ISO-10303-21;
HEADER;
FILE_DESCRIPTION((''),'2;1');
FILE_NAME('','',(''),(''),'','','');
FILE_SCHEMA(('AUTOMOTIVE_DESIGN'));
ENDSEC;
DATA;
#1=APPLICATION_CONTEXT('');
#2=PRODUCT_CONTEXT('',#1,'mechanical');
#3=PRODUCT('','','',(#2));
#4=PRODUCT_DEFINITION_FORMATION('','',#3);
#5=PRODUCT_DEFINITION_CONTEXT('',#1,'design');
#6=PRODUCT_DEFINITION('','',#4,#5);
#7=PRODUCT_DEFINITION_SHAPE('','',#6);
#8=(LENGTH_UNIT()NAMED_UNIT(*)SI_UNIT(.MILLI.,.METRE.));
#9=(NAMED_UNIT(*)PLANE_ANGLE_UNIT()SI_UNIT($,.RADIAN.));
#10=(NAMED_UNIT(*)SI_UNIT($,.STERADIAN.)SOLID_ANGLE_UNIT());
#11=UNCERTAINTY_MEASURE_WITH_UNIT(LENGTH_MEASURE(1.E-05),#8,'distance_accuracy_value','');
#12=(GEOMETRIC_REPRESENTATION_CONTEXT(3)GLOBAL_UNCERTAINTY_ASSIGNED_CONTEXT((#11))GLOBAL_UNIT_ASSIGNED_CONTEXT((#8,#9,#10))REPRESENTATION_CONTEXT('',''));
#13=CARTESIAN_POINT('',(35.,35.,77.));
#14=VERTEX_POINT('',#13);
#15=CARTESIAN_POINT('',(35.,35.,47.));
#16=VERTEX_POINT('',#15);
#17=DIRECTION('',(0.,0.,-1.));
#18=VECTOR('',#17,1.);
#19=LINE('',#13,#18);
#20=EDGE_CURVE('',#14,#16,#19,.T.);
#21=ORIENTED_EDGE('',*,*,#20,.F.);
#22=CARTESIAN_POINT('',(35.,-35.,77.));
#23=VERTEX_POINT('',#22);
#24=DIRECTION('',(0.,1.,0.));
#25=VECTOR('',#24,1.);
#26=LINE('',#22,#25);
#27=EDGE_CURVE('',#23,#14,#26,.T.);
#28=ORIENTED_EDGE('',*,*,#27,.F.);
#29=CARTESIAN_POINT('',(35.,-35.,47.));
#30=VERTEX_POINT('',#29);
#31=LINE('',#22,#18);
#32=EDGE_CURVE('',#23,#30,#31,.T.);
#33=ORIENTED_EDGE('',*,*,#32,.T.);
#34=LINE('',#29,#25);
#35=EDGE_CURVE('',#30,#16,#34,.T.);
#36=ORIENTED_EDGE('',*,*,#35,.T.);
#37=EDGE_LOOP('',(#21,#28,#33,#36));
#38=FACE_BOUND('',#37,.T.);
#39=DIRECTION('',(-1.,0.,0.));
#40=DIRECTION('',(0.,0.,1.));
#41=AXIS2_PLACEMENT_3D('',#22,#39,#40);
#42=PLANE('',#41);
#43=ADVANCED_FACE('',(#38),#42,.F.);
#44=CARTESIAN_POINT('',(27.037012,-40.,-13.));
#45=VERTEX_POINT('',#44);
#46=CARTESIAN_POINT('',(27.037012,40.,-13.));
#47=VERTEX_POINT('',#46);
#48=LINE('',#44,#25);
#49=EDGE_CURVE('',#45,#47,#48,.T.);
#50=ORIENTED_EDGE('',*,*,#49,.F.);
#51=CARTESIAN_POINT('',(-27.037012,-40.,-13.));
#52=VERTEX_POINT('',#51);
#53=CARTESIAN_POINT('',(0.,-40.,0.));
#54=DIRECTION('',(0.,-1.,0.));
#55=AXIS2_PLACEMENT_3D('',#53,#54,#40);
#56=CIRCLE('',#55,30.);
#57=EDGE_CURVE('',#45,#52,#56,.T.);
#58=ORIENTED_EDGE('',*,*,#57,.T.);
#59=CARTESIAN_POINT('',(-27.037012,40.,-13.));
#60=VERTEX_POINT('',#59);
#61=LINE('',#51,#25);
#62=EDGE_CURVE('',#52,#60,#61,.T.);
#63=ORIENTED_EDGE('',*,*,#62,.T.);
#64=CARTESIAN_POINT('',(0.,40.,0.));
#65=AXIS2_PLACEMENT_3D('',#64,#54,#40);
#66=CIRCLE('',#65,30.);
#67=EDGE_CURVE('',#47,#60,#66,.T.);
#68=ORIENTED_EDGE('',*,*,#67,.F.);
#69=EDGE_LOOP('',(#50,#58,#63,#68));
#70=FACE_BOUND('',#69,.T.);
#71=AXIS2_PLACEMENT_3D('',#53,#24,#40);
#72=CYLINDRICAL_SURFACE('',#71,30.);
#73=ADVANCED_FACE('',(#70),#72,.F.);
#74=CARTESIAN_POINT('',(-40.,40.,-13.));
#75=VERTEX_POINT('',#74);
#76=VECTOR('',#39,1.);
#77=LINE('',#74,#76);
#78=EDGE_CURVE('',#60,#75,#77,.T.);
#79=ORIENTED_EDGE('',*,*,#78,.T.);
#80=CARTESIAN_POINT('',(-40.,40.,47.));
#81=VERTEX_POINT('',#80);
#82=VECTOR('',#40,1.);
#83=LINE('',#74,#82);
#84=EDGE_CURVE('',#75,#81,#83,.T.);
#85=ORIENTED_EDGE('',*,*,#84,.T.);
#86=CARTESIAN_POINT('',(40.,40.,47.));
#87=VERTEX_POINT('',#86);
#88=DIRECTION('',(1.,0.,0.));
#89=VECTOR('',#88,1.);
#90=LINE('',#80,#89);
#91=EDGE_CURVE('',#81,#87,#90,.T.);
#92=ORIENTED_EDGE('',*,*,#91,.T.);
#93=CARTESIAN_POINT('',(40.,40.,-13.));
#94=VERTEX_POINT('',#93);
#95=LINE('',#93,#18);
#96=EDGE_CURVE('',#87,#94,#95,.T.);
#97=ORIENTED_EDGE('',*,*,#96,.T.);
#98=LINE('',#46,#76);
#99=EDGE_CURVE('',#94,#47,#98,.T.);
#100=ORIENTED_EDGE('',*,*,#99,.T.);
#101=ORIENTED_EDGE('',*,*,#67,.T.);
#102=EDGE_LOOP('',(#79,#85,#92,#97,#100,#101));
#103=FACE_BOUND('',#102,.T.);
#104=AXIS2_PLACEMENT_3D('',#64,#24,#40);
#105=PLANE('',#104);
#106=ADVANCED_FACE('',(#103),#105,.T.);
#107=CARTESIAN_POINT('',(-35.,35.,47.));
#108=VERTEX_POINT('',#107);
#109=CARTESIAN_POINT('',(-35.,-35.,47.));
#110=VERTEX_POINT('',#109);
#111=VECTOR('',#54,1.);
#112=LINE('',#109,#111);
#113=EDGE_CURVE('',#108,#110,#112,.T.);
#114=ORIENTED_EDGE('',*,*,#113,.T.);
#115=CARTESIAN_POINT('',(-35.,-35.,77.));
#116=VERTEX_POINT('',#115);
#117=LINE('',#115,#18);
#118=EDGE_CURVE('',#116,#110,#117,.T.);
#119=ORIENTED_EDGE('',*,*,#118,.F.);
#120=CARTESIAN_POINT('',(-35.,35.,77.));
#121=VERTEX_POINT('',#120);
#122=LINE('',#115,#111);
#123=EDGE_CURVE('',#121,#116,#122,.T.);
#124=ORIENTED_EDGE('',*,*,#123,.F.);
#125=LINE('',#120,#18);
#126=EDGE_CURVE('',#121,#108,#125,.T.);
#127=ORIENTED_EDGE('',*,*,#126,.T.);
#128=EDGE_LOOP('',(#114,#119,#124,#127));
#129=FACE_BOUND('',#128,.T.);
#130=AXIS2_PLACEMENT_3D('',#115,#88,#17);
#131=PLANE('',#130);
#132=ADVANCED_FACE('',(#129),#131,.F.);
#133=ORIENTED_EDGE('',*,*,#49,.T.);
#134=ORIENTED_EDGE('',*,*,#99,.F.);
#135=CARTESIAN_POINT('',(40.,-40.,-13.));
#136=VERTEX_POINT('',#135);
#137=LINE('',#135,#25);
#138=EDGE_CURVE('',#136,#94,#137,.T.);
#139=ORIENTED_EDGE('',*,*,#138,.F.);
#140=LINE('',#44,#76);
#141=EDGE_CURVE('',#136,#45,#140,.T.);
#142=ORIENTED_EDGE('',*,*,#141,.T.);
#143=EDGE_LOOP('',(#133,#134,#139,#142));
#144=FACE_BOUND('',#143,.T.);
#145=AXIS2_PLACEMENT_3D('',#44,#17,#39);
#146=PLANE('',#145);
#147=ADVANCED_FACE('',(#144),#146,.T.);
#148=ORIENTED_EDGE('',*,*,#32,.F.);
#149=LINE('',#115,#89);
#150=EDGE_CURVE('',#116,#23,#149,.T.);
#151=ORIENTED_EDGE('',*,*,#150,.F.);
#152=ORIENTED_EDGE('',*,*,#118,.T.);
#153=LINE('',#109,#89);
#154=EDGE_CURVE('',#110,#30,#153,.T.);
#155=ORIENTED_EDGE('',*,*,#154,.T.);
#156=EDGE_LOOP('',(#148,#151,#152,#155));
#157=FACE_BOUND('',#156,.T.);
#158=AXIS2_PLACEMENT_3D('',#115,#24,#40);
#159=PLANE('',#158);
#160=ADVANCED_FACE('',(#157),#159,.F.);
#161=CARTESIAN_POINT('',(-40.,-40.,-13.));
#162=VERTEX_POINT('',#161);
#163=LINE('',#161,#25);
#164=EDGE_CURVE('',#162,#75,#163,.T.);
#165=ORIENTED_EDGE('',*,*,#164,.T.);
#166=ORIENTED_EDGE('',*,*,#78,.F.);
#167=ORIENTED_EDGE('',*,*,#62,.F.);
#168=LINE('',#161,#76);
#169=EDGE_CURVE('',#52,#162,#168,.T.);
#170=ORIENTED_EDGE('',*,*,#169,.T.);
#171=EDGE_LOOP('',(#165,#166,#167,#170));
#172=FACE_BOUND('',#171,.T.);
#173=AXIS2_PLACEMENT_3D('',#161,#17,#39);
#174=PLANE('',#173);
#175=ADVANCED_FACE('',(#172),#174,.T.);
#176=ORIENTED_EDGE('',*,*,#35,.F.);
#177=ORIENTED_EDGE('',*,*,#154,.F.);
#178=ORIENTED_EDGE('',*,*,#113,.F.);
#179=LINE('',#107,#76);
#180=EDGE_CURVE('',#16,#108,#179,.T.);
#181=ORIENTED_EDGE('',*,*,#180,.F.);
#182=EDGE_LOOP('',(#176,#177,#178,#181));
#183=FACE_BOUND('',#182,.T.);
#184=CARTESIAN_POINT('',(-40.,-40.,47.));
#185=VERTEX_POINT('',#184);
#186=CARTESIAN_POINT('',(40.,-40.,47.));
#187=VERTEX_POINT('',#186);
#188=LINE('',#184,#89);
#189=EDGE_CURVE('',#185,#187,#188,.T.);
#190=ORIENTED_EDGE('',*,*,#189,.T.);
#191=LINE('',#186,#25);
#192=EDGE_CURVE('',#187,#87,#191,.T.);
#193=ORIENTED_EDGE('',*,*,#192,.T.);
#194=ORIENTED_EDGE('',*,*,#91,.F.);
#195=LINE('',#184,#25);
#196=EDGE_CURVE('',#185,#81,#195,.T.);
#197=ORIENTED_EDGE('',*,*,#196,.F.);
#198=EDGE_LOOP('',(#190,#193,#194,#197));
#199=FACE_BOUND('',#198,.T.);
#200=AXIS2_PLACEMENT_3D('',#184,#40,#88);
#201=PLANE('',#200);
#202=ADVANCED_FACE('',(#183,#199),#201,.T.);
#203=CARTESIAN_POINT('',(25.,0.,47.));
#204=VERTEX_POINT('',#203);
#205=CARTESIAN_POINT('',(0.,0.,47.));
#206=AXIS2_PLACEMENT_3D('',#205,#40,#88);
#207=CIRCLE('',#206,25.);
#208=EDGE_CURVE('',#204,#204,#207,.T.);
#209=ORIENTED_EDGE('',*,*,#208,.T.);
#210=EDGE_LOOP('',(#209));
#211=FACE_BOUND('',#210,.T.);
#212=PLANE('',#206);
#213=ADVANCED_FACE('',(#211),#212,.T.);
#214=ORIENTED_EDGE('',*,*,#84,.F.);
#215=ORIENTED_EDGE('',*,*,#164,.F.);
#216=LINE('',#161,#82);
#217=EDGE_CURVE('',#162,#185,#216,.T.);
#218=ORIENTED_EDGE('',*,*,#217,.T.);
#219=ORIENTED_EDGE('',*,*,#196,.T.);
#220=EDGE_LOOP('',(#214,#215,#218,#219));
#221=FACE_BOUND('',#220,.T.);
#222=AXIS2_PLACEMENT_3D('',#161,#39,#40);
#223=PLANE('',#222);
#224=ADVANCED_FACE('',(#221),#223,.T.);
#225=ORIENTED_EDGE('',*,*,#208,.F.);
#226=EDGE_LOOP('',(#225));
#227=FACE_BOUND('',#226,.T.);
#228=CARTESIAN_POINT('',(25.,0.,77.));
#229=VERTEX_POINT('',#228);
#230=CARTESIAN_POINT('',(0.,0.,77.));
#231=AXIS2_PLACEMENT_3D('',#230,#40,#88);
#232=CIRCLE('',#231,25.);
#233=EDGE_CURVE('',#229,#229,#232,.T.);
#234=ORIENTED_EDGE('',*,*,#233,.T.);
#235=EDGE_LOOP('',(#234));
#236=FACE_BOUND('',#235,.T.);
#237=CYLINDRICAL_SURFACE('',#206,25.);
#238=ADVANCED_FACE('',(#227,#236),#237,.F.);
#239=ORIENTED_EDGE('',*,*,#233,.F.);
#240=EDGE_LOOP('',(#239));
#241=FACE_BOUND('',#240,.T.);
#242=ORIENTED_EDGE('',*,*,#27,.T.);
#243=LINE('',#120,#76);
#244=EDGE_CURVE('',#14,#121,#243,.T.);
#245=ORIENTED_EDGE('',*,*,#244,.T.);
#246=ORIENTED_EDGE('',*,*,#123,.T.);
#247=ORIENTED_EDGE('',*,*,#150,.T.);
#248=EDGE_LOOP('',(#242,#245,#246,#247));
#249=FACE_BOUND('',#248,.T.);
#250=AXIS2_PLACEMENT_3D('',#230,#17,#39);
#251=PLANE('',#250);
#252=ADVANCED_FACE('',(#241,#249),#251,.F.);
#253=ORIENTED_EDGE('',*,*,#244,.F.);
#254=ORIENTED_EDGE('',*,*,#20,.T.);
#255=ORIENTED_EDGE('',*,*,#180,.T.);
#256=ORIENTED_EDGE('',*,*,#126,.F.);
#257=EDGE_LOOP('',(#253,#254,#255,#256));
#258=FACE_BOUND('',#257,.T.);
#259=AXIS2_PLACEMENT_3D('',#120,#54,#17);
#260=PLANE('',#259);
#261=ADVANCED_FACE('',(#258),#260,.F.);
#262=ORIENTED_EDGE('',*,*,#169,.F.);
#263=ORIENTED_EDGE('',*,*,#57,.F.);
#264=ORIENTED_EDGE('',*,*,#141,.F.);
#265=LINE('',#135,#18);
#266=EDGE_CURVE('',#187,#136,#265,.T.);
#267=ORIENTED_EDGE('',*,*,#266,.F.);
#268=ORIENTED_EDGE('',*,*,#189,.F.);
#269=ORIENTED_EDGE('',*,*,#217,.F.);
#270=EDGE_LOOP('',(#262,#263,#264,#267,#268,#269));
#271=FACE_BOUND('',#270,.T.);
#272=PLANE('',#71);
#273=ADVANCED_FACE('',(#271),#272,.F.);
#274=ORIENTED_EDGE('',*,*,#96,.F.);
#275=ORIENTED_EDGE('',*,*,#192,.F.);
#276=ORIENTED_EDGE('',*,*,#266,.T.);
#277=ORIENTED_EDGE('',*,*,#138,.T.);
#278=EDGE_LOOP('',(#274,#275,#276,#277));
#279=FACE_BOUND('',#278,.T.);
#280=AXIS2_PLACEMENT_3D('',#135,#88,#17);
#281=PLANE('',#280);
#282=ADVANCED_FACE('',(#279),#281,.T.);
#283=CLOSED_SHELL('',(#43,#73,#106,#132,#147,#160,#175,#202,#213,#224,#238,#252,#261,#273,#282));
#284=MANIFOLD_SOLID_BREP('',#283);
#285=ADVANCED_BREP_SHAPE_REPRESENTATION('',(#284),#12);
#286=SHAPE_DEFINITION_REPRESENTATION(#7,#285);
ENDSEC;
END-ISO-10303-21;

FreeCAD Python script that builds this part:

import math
import FreeCAD as App
import Part
import Sketcher
from FreeCAD import Vector
Q = App.Units.Quantity


def add_polygon(sketch, points):
    """Adds a closed chain of lines whose ends are joined by coincident constraints."""
    first, n = sketch.GeometryCount, len(points)
    for a, b in zip(points, points[1:] + points[:1]):
        sketch.addGeometry(Part.LineSegment(App.Vector(*a, 0), App.Vector(*b, 0)), False)
    for i in range(n):
        sketch.addConstraint(Sketcher.Constraint("Coincident", first + i, 2, first + (i + 1) % n, 1))

doc = App.newDocument("Part")
body = doc.addObject("PartDesign::Body", "Body")

# Sketch on XZ plane
sketch1 = body.newObject("Sketcher::SketchObject", "Sketch")
sketch1.AttachmentSupport = (doc.getObject("XZ_Plane"), [""])
sketch1.MapMode = "FlatFace"
sketch1.addGeometry([
    Part.LineSegment(Vector(-27, -13, 0), Vector(-40, -13, 0)),  # 0
    Part.LineSegment(Vector(-40, -13, 0), Vector(-40, 47, 0)),  # 1
    Part.LineSegment(Vector(-40, 47, 0), Vector(40, 47, 0)),  # 2
    Part.LineSegment(Vector(40, 47, 0), Vector(40, -13, 0)),  # 3
    Part.LineSegment(Vector(40, -13, 0), Vector(27, -13, 0)),  # 4
    Part.ArcOfCircle(Part.Circle(Vector(0, 0, 0), Vector(0, 0, 1), 30), math.radians(-26), math.radians(206)),  # 5
], False)
sketch1.addConstraint([
    Sketcher.Constraint("Coincident", 0, 2, 1, 1),
    Sketcher.Constraint("Coincident", 1, 2, 2, 1),
    Sketcher.Constraint("Coincident", 2, 2, 3, 1),
    Sketcher.Constraint("Coincident", 3, 2, 4, 1),
    Sketcher.Constraint("Coincident", 4, 2, 5, 1),
    Sketcher.Constraint("Coincident", 5, 2, 0, 1),
    Sketcher.Constraint("Horizontal", 0),
    Sketcher.Constraint("Vertical", 1),
    Sketcher.Constraint("Horizontal", 2),
    Sketcher.Constraint("Vertical", 3),
    Sketcher.Constraint("Horizontal", 4),
    Sketcher.Constraint("Coincident", 5, 3, -1, 1),
    Sketcher.Constraint("Symmetric", 0, 2, 3, 2, -2),
    Sketcher.Constraint("Radius", 5, Q("30 mm")),
    Sketcher.Constraint("DistanceX", 2, 1, 2, 2, Q("80 mm")),
    Sketcher.Constraint("DistanceY", 1, 1, 1, 2, Q("60 mm")),
    Sketcher.Constraint("DistanceY", 0, 2, -1, 1, Q("13 mm")),
])
pad1 = body.newObject("PartDesign::Pad", "Pad")
pad1.Profile = sketch1
pad1.Type = "TwoLengths"
pad1.Length = 40
pad1.Length2 = 40
pad1.Reversed = True

# Sketch on XY plane
sketch2 = body.newObject("Sketcher::SketchObject", "Sketch001")
sketch2.AttachmentSupport = (doc.getObject("XY_Plane"), [""])
sketch2.MapMode = "FlatFace"
sketch2.AttachmentOffset = App.Placement(Vector(0, 0, 47), App.Rotation())
add_polygon(sketch2, [(-35, 35), (-35, -35), (35, -35), (35, 35)])  # lines 0-3
sketch2.addConstraint([
    Sketcher.Constraint("Vertical", 0),
    Sketcher.Constraint("Horizontal", 1),
    Sketcher.Constraint("Vertical", 2),
    Sketcher.Constraint("Horizontal", 3),
    Sketcher.Constraint("Symmetric", 0, 2, 2, 2, -1, 1),
    Sketcher.Constraint("Equal", 3, 0),
    Sketcher.Constraint("DistanceX", 1, 1, 1, 2, Q("70 mm")),
])
pad2 = body.newObject("PartDesign::Pad", "Pad001")
pad2.Profile = sketch2
pad2.Length = 30

# Sketch on XY plane
sketch3 = body.newObject("Sketcher::SketchObject", "Sketch002")
sketch3.AttachmentSupport = (doc.getObject("XY_Plane"), [""])
sketch3.MapMode = "FlatFace"
sketch3.AttachmentOffset = App.Placement(Vector(0, 0, 77), App.Rotation())
sketch3.addGeometry(Part.Circle(Vector(0, 0, 0), Vector(0, 0, 1), 25), False)
sketch3.addConstraint([
    Sketcher.Constraint("Coincident", 0, 3, -1, 1),
    Sketcher.Constraint("Diameter", 0, Q("50 mm")),
])
pocket1 = body.newObject("PartDesign::Pocket", "Pocket")
pocket1.Profile = sketch3
pocket1.Length = 30

doc.recompute()
